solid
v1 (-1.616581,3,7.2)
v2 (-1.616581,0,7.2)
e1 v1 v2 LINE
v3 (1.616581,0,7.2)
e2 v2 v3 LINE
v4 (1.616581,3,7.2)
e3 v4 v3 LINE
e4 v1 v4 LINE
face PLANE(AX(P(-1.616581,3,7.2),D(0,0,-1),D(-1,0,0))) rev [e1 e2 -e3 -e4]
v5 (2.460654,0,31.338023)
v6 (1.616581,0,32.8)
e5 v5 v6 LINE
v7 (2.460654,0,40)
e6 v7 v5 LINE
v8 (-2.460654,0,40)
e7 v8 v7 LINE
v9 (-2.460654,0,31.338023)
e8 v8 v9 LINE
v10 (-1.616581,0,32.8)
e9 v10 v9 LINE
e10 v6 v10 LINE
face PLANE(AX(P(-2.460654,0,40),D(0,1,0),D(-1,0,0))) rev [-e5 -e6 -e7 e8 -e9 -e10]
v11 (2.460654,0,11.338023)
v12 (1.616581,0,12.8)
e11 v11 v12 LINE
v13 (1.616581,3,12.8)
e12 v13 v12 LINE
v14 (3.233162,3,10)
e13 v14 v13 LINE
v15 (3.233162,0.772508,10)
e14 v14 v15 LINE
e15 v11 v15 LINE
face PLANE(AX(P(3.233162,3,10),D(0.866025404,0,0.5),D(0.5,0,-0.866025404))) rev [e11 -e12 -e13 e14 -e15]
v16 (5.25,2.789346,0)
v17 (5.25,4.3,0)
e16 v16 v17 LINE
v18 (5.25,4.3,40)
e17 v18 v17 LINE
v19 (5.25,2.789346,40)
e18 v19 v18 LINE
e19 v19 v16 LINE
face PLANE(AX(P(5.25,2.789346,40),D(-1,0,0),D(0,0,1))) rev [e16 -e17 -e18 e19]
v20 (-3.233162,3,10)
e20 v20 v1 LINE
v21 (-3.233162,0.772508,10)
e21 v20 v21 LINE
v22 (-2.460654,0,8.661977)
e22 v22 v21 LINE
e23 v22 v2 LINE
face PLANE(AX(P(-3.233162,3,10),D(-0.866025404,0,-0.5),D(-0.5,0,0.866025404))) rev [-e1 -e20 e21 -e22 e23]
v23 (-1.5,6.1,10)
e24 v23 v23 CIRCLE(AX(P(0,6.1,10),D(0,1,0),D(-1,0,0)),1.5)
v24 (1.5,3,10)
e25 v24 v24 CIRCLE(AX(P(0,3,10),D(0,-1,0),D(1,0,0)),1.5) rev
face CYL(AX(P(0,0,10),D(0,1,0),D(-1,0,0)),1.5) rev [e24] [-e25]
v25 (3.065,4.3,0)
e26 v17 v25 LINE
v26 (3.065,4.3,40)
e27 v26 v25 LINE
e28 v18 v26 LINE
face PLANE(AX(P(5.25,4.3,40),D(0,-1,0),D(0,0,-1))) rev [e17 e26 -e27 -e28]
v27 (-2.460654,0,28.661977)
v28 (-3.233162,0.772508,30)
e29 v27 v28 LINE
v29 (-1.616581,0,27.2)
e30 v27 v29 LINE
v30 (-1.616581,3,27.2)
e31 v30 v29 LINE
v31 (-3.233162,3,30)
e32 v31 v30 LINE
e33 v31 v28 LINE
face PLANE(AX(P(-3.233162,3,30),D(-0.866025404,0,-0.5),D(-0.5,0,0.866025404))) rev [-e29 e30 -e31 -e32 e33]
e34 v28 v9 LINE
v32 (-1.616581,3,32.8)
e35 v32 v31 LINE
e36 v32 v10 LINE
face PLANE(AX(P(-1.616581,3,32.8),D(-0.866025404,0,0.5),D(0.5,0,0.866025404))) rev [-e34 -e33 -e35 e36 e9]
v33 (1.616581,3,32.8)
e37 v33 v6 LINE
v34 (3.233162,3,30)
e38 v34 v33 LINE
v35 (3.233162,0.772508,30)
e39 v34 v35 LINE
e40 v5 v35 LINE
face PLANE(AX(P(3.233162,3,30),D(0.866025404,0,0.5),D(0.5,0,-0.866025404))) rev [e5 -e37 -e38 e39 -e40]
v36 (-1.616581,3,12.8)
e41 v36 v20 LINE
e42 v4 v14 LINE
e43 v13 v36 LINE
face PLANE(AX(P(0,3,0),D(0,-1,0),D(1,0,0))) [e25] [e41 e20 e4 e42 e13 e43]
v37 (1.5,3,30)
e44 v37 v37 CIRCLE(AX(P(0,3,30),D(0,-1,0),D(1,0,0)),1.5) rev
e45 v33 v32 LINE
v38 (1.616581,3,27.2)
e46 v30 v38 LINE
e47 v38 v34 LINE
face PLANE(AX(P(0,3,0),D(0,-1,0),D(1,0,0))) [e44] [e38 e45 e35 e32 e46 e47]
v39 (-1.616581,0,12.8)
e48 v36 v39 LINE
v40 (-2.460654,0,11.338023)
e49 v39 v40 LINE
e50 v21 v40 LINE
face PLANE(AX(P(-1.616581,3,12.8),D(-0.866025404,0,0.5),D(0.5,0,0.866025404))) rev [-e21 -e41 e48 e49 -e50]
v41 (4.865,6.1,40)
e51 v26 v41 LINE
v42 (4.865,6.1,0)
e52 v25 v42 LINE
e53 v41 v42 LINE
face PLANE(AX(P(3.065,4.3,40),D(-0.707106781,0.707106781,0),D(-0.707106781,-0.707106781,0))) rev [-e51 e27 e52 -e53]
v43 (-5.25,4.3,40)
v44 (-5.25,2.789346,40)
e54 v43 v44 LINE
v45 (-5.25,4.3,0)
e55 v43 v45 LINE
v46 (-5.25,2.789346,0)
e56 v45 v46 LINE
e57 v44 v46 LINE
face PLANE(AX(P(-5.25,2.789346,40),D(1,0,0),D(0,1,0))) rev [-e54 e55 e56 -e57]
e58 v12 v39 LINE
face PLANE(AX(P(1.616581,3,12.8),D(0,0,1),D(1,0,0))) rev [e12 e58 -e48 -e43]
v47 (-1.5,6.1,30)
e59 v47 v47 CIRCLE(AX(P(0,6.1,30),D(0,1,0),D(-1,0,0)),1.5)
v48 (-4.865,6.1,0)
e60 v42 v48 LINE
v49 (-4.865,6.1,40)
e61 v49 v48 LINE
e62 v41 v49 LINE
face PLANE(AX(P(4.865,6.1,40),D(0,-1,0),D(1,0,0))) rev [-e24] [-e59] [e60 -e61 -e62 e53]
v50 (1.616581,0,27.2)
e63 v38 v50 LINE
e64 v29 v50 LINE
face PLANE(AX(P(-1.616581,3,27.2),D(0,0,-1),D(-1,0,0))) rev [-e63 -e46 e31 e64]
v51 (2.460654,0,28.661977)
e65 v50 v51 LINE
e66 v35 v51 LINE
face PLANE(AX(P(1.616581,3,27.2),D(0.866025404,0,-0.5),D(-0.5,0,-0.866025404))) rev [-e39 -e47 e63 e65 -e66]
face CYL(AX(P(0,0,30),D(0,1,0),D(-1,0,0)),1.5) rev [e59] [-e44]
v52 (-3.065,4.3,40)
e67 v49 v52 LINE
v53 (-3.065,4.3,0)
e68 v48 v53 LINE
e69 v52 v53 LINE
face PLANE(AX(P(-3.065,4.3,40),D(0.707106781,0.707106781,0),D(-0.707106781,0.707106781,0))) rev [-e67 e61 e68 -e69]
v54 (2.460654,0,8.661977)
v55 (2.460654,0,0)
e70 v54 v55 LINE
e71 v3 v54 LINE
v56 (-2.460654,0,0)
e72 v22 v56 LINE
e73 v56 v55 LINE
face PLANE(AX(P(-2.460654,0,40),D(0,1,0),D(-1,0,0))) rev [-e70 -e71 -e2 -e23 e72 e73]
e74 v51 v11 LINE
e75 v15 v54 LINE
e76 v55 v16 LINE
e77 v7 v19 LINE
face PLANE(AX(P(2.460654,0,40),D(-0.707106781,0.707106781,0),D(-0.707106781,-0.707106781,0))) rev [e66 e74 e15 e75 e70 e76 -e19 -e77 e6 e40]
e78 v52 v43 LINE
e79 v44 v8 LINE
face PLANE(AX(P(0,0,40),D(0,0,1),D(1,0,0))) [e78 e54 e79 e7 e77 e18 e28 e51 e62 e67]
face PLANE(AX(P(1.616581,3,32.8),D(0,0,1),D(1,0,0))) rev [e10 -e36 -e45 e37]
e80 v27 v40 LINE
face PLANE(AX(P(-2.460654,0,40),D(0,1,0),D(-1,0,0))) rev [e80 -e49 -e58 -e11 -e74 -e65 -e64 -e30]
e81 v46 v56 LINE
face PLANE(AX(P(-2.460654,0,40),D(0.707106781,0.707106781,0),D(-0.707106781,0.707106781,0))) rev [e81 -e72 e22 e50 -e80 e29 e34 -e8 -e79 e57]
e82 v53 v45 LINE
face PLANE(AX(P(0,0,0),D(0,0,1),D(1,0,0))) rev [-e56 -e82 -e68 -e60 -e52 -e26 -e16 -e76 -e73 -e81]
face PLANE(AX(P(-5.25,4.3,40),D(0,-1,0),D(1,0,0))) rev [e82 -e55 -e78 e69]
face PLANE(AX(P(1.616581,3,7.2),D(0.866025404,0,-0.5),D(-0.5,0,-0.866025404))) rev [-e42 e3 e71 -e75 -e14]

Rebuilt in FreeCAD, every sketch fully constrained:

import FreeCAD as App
import Part
import Sketcher

V = App.Vector
Q = App.Units.Quantity

doc = App.newDocument("Part")
body = doc.addObject("PartDesign::Body", "Body")

# Sketch on XY plane
sketch1 = body.newObject("Sketcher::SketchObject", "Sketch")
sketch1.AttachmentSupport = (doc.getObject("XY_Plane"), [""])
sketch1.MapMode = "FlatFace"
sketch1.addGeometry([
    Part.LineSegment(V(-2.460654, 0, 0), V(2.460654, 0, 0)),  # 0
    Part.LineSegment(V(2.460654, 0, 0), V(5.25, 2.789346, 0)),  # 1
    Part.LineSegment(V(5.25, 2.789346, 0), V(5.25, 4.3, 0)),  # 2
    Part.LineSegment(V(5.25, 4.3, 0), V(3.065, 4.3, 0)),  # 3
    Part.LineSegment(V(3.065, 4.3, 0), V(4.865, 6.1, 0)),  # 4
    Part.LineSegment(V(4.865, 6.1, 0), V(-4.865, 6.1, 0)),  # 5
    Part.LineSegment(V(-4.865, 6.1, 0), V(-3.065, 4.3, 0)),  # 6
    Part.LineSegment(V(-3.065, 4.3, 0), V(-5.25, 4.3, 0)),  # 7
    Part.LineSegment(V(-5.25, 4.3, 0), V(-5.25, 2.789346, 0)),  # 8
    Part.LineSegment(V(-5.25, 2.789346, 0), V(-2.460654, 0, 0)),  # 9
], False)
sketch1.addConstraint([
    Sketcher.Constraint("Coincident", 0, 2, 1, 1),
    Sketcher.Constraint("Coincident", 1, 2, 2, 1),
    Sketcher.Constraint("Coincident", 2, 2, 3, 1),
    Sketcher.Constraint("Coincident", 3, 2, 4, 1),
    Sketcher.Constraint("Coincident", 4, 2, 5, 1),
    Sketcher.Constraint("Coincident", 5, 2, 6, 1),
    Sketcher.Constraint("Coincident", 6, 2, 7, 1),
    Sketcher.Constraint("Coincident", 7, 2, 8, 1),
    Sketcher.Constraint("Coincident", 8, 2, 9, 1),
    Sketcher.Constraint("Coincident", 9, 2, 0, 1),
    Sketcher.Constraint("Horizontal", 0),
    Sketcher.Constraint("Vertical", 2),
    Sketcher.Constraint("Horizontal", 3),
    Sketcher.Constraint("Horizontal", 5),
    Sketcher.Constraint("Horizontal", 7),
    Sketcher.Constraint("Vertical", 8),
    Sketcher.Constraint("Symmetric", 0, 2, 9, 2, -1, 1),
    Sketcher.Constraint("Symmetric", 3, 2, 6, 2, -2),
    Sketcher.Constraint("Symmetric", 1, 2, 8, 2, -2),
    Sketcher.Constraint("Parallel", 1, 4),
    Sketcher.Constraint("Perpendicular", 4, 6),
    Sketcher.Constraint("Parallel", 6, 9),
    Sketcher.Constraint("DistanceX", 5, 2, 5, 1, Q("9.73 mm")),
    Sketcher.Constraint("DistanceY", -1, 1, 2, 2, Q("4.3 mm")),
    Sketcher.Constraint("DistanceY", -1, 1, 4, 2, Q("6.1 mm")),
    Sketcher.Constraint("DistanceX", 3, 2, 3, 1, Q("2.185 mm")),
    Sketcher.Constraint("Distance", 1, Q("3.944732 mm")),
])
pad1 = body.newObject("PartDesign::Pad", "Pad")
pad1.Profile = sketch1
pad1.Length = 40

# Sketch on XZ plane
sketch2 = body.newObject("Sketcher::SketchObject", "Sketch001")
sketch2.AttachmentSupport = (doc.getObject("XZ_Plane"), [""])
sketch2.MapMode = "FlatFace"
sketch2.AttachmentOffset = App.Placement(V(0, 0, -6.1), App.Rotation())
sketch2.addGeometry([
    Part.Circle(V(0, 30, 0), V(0, 0, 1), 1.5),
    Part.Circle(V(0, 10, 0), V(0, 0, 1), 1.5),
], False)
sketch2.addConstraint([
    Sketcher.Constraint("Equal", 0, 1),
    Sketcher.Constraint("PointOnObject", 0, 3, -2),
    Sketcher.Constraint("PointOnObject", 1, 3, -2),
    Sketcher.Constraint("Diameter", 0, Q("3 mm")),
    Sketcher.Constraint("DistanceY", -1, 1, 0, 3, Q("30 mm")),
    Sketcher.Constraint("DistanceY", -1, 1, 1, 3, Q("10 mm")),
])
pocket1 = body.newObject("PartDesign::Pocket", "Pocket")
pocket1.Profile = sketch2
pocket1.Type = "ThroughAll"
pocket1.Reversed = True

# Sketch on XZ plane
sketch3 = body.newObject("Sketcher::SketchObject", "Sketch002")
sketch3.AttachmentSupport = (doc.getObject("XZ_Plane"), [""])
sketch3.MapMode = "FlatFace"
sketch3.addGeometry([
    Part.LineSegment(V(3.233162, 10, 0), V(1.616581, 12.8, 0)),  # 0
    Part.LineSegment(V(1.616581, 12.8, 0), V(-1.616581, 12.8, 0)),  # 1
    Part.LineSegment(V(-1.616581, 12.8, 0), V(-3.233162, 10, 0)),  # 2
    Part.LineSegment(V(-3.233162, 10, 0), V(-1.616581, 7.2, 0)),  # 3
    Part.LineSegment(V(-1.616581, 7.2, 0), V(1.616581, 7.2, 0)),  # 4
    Part.LineSegment(V(1.616581, 7.2, 0), V(3.233162, 10, 0)),  # 5
    Part.LineSegment(V(3.233162, 30, 0), V(1.616581, 32.8, 0)),  # 6
    Part.LineSegment(V(1.616581, 32.8, 0), V(-1.616581, 32.8, 0)),  # 7
    Part.LineSegment(V(-1.616581, 32.8, 0), V(-3.233162, 30, 0)),  # 8
    Part.LineSegment(V(-3.233162, 30, 0), V(-1.616581, 27.2, 0)),  # 9
    Part.LineSegment(V(-1.616581, 27.2, 0), V(1.616581, 27.2, 0)),  # 10
    Part.LineSegment(V(1.616581, 27.2, 0), V(3.233162, 30, 0)),  # 11
], False)
sketch3.addConstraint([
    Sketcher.Constraint("Coincident", 0, 2, 1, 1),
    Sketcher.Constraint("Coincident", 1, 2, 2, 1),
    Sketcher.Constraint("Coincident", 2, 2, 3, 1),
    Sketcher.Constraint("Coincident", 3, 2, 4, 1),
    Sketcher.Constraint("Coincident", 4, 2, 5, 1),
    Sketcher.Constraint("Coincident", 5, 2, 0, 1),
    Sketcher.Constraint("Coincident", 6, 2, 7, 1),
    Sketcher.Constraint("Coincident", 7, 2, 8, 1),
    Sketcher.Constraint("Coincident", 8, 2, 9, 1),
    Sketcher.Constraint("Coincident", 9, 2, 10, 1),
    Sketcher.Constraint("Coincident", 10, 2, 11, 1),
    Sketcher.Constraint("Coincident", 11, 2, 6, 1),
    Sketcher.Constraint("Horizontal", 1),
    Sketcher.Constraint("Horizontal", 4),
    Sketcher.Constraint("Horizontal", 7),
    Sketcher.Constraint("Horizontal", 10),
    Sketcher.Constraint("Symmetric", 2, 2, 5, 2, -2),
    Sketcher.Constraint("Symmetric", 8, 2, 11, 2, -2),
    Sketcher.Constraint("Parallel", 0, 3),
    Sketcher.Constraint("Parallel", 2, 5),
    Sketcher.Constraint("Parallel", 3, 6),
    Sketcher.Constraint("Parallel", 5, 8),
    Sketcher.Constraint("Parallel", 6, 9),
    Sketcher.Constraint("Parallel", 8, 11),
    Sketcher.Constraint("Vertical", 1, 2, 3, 2),
    Sketcher.Constraint("Vertical", 0, 2, 4, 2),
    Sketcher.Constraint("Vertical", 4, 2, 6, 2),
    Sketcher.Constraint("Vertical", 2, 2, 8, 2),
    Sketcher.Constraint("Vertical", 7, 2, 9, 2),
    Sketcher.Constraint("Angle", 0, Q("120 deg")),
    Sketcher.Constraint("DistanceY", -1, 1, 2, 2, Q("10 mm")),
    Sketcher.Constraint("DistanceY", -1, 1, 8, 2, Q("30 mm")),
    Sketcher.Constraint("DistanceY", -1, 1, 0, 2, Q("12.8 mm")),
    Sketcher.Constraint("DistanceX", 1, 2, 1, 1, Q("3.233162 mm")),
])
pocket2 = body.newObject("PartDesign::Pocket", "Pocket001")
pocket2.Profile = sketch3
pocket2.Length = 3

doc.recompute()
